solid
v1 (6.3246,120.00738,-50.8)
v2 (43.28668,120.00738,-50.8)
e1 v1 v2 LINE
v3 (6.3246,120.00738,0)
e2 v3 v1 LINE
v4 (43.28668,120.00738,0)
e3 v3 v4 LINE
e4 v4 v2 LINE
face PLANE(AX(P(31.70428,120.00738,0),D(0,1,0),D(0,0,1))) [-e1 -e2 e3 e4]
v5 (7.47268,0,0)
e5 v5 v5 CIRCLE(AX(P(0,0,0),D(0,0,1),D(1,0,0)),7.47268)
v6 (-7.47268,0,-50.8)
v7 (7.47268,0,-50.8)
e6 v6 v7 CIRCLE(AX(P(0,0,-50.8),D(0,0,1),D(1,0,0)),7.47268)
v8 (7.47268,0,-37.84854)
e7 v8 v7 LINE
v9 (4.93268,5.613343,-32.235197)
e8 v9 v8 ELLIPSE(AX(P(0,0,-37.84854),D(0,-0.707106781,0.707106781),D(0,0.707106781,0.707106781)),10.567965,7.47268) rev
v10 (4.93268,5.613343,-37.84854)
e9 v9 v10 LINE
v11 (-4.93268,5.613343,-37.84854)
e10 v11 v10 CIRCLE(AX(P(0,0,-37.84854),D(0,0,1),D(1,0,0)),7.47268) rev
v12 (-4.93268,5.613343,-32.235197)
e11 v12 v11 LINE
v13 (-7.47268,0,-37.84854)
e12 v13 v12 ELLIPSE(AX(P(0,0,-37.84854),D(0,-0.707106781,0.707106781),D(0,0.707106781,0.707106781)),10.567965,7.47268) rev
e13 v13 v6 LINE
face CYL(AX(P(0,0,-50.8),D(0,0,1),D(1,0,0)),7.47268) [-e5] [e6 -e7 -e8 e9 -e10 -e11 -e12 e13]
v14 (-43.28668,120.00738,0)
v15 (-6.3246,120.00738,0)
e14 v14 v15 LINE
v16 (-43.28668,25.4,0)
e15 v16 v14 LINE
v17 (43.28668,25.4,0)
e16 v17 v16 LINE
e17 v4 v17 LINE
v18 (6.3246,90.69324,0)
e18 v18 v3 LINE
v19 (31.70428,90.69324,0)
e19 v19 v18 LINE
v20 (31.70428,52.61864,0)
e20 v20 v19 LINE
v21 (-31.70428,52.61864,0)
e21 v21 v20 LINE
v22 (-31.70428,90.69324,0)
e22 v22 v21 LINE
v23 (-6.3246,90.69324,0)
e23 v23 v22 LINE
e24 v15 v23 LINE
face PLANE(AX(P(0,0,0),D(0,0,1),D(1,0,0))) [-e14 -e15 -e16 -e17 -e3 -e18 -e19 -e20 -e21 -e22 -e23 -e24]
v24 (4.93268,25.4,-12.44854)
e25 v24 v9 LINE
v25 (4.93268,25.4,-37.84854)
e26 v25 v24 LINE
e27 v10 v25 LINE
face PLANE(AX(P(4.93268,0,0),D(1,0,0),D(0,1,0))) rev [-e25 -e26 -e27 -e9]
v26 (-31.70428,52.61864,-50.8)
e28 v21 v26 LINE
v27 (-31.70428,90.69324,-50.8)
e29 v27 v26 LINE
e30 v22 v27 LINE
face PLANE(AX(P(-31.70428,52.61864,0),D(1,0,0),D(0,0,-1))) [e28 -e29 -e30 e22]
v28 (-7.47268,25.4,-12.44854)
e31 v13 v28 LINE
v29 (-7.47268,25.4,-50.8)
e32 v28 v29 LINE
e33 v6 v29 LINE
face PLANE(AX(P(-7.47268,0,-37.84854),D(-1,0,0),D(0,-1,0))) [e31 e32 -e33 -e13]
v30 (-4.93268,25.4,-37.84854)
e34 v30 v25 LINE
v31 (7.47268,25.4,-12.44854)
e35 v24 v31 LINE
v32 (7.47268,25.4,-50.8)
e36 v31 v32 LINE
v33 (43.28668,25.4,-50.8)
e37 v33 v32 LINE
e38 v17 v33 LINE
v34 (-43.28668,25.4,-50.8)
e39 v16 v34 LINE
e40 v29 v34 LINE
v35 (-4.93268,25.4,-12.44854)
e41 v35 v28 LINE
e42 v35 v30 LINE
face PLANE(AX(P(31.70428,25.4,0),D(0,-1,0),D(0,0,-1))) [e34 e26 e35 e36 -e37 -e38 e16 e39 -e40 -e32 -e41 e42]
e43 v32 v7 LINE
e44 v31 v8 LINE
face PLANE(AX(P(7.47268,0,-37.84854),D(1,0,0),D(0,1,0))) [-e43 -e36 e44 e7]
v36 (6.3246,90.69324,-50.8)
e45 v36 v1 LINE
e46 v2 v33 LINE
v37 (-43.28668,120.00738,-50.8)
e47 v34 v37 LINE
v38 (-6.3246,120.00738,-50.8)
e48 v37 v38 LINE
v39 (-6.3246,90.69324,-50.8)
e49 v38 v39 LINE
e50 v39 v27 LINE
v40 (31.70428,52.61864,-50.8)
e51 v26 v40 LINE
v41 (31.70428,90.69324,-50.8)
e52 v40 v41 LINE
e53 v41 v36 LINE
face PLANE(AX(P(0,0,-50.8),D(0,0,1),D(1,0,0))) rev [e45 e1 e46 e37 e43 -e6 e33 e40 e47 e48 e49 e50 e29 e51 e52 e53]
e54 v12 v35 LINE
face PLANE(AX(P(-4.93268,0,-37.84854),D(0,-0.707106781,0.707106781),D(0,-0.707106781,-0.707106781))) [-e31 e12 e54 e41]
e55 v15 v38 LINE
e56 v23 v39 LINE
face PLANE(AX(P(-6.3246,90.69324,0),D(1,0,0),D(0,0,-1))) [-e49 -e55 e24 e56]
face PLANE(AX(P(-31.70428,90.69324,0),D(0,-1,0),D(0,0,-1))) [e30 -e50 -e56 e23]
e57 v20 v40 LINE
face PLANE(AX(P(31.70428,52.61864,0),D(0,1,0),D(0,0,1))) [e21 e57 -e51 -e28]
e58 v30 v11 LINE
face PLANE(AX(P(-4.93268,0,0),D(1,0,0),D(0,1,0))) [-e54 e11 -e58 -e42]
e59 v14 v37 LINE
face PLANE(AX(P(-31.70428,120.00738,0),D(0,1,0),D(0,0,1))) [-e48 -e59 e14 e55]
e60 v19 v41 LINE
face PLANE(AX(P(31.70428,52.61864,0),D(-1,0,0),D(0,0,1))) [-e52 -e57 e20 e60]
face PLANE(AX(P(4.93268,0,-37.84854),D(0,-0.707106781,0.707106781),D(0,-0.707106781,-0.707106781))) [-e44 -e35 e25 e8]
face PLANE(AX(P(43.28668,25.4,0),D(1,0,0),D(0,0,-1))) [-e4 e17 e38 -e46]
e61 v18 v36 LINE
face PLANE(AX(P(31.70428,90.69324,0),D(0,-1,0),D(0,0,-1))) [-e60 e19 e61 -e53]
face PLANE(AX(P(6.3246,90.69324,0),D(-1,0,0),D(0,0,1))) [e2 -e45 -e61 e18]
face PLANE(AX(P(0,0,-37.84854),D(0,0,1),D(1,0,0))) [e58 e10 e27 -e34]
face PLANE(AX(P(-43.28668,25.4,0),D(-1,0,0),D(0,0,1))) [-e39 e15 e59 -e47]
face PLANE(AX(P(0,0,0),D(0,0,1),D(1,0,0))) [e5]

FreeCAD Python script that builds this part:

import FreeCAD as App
import Part
import Sketcher

V = App.Vector
Q = App.Units.Quantity


def add_polygon(sketch, points):
    """Adds a closed chain of lines whose ends are joined by coincident constraints."""
    first, n = sketch.GeometryCount, len(points)
    for a, b in zip(points, points[1:] + points[:1]):
        sketch.addGeometry(Part.LineSegment(App.Vector(*a, 0), App.Vector(*b, 0)), False)
    for i in range(n):
        sketch.addConstraint(Sketcher.Constraint("Coincident", first + i, 2, first + (i + 1) % n, 1))

doc = App.newDocument("Part")
body = doc.addObject("PartDesign::Body", "Body")

# Sketch on XY plane
sketch1 = body.newObject("Sketcher::SketchObject", "Sketch")
sketch1.AttachmentSupport = (doc.getObject("XY_Plane"), [""])
sketch1.MapMode = "FlatFace"
sketch1.addGeometry(Part.Circle(V(0, 0, 0), V(0, 0, 1), 7), False)
sketch1.addConstraint(Sketcher.Constraint("Coincident", 0, 3, -1, 1))
sketch1.addConstraint(Sketcher.Constraint("Diameter", 0, Q("0.5884 in")))
pad1 = body.newObject("PartDesign::Pad", "Pad")
pad1.Profile = sketch1
pad1.Length = Q("2 in")
pad1.Reversed = True

# Sketch on XY plane
sketch2 = body.newObject("Sketcher::SketchObject", "Sketch001")
sketch2.AttachmentSupport = (doc.getObject("XY_Plane"), [""])
sketch2.MapMode = "FlatFace"
sketch2.AttachmentOffset = App.Placement(V(0, 0, -2 * 25.4), App.Rotation())
add_polygon(sketch2, [(7, 25), (7, 0), (-7, 0), (-7, 25)])  # lines 0-3
sketch2.addConstraint(Sketcher.Constraint("Vertical", 0))
sketch2.addConstraint(Sketcher.Constraint("Horizontal", 1))
sketch2.addConstraint(Sketcher.Constraint("Vertical", 2))
sketch2.addConstraint(Sketcher.Constraint("Horizontal", 3))
sketch2.addConstraint(Sketcher.Constraint("Symmetric", 0, 2, 1, 2, -1, 1))
sketch2.addConstraint(Sketcher.Constraint("DistanceY", 0, 2, 0, 1, Q("1 in")))
sketch2.addConstraint(Sketcher.Constraint("DistanceX", 1, 2, 1, 1, Q("0.5884 in")))
pad2 = body.newObject("PartDesign::Pad", "Pad001")
pad2.Profile = sketch2
pad2.Length = Q("0.5099 in")

# Sketch on XY plane
sketch3 = body.newObject("Sketcher::SketchObject", "Sketch002")
sketch3.AttachmentSupport = (doc.getObject("XY_Plane"), [""])
sketch3.MapMode = "FlatFace"
sketch3.AttachmentOffset = App.Placement(V(0, 0, -2 * 25.4), App.Rotation())
add_polygon(sketch3, [(32, 53), (32, 25), (-32, 25), (-32, 53)])  # lines 0-3
sketch3.addConstraint(Sketcher.Constraint("Vertical", 0))
sketch3.addConstraint(Sketcher.Constraint("Horizontal", 1))
sketch3.addConstraint(Sketcher.Constraint("Vertical", 2))
sketch3.addConstraint(Sketcher.Constraint("Horizontal", 3))
sketch3.addConstraint(Sketcher.Constraint("DistanceY", -1, 1, 0, 2, Q("1 in")))
sketch3.addConstraint(Sketcher.Constraint("DistanceX", 1, 2, 1, 1, Q("2.4964 in")))
sketch3.addConstraint(Sketcher.Constraint("DistanceY", 0, 2, 0, 1, Q("1.0716 in")))
sketch3.addConstraint(Sketcher.Constraint("DistanceX", -1, 1, 0, 2, Q("1.2482 in")))
pad3 = body.newObject("PartDesign::Pad", "Pad002")
pad3.Profile = sketch3
pad3.Length = Q("2 in")
body2 = doc.addObject("PartDesign::Body", "Body001")

# Sketch on XY plane
sketch4 = body2.newObject("Sketcher::SketchObject", "Sketch003")
sketch4.AttachmentSupport = (doc.getObject("XY_Plane001"), [""])
sketch4.MapMode = "FlatFace"
sketch4.AttachmentOffset = App.Placement(V(0, 0, -2 * 25.4), App.Rotation())
add_polygon(sketch4, [(43, 91), (43, 53), (32, 53), (32, 91)])  # lines 0-3
sketch4.addConstraint(Sketcher.Constraint("Vertical", 0))
sketch4.addConstraint(Sketcher.Constraint("Horizontal", 1))
sketch4.addConstraint(Sketcher.Constraint("Vertical", 2))
sketch4.addConstraint(Sketcher.Constraint("Horizontal", 3))
sketch4.addConstraint(Sketcher.Constraint("DistanceX", 1, 2, 1, 1, Q("0.456 in")))
sketch4.addConstraint(Sketcher.Constraint("DistanceY", 0, 2, 0, 1, Q("1.499 in")))
sketch4.addConstraint(Sketcher.Constraint("DistanceX", -1, 1, 0, 2, Q("1.7042 in")))
sketch4.addConstraint(Sketcher.Constraint("DistanceY", -1, 1, 0, 2, Q("2.0716 in")))
pad4 = body2.newObject("PartDesign::Pad", "Pad003")
pad4.Profile = sketch4
pad4.Length = Q("2 in")
body3 = doc.addObject("PartDesign::Body", "Body002")

# Sketch on XY plane
sketch5 = body3.newObject("Sketcher::SketchObject", "Sketch004")
sketch5.AttachmentSupport = (doc.getObject("XY_Plane002"), [""])
sketch5.MapMode = "FlatFace"
sketch5.AttachmentOffset = App.Placement(V(0, 0, -2 * 25.4), App.Rotation())
add_polygon(sketch5, [(-32, 91), (-32, 53), (-43, 53), (-43, 91)])  # lines 0-3
sketch5.addConstraint(Sketcher.Constraint("Vertical", 0))
sketch5.addConstraint(Sketcher.Constraint("Horizontal", 1))
sketch5.addConstraint(Sketcher.Constraint("Vertical", 2))
sketch5.addConstraint(Sketcher.Constraint("Horizontal", 3))
sketch5.addConstraint(Sketcher.Constraint("DistanceX", 1, 2, 1, 1, Q("0.456 in")))
sketch5.addConstraint(Sketcher.Constraint("DistanceY", 0, 2, 0, 1, Q("1.499 in")))
sketch5.addConstraint(Sketcher.Constraint("DistanceX", 0, 2, -1, 1, Q("1.2482 in")))
sketch5.addConstraint(Sketcher.Constraint("DistanceY", -1, 1, 0, 2, Q("2.0716 in")))
pad5 = body3.newObject("PartDesign::Pad", "Pad004")
pad5.Profile = sketch5
pad5.Length = Q("2 in")
body.AllowCompound = True
doc.recompute()

boolean = body.newObject("PartDesign::Boolean", "Boolean")
boolean.Type = "Fuse"
boolean.addObjects([body2])
doc.recompute()

boolean2 = body.newObject("PartDesign::Boolean", "Boolean001")
boolean2.Type = "Fuse"
boolean2.addObjects([body3])

# Sketch on XY plane
sketch6 = body.newObject("Sketcher::SketchObject", "Sketch005")
sketch6.AttachmentSupport = (doc.getObject("XY_Plane"), [""])
sketch6.MapMode = "FlatFace"
sketch6.AttachmentOffset = App.Placement(V(0, 0, -2 * 25.4), App.Rotation())
add_polygon(sketch6, [(43, 53), (43, 25), (32, 25), (32, 53)])  # lines 0-3
add_polygon(sketch6, [(-32, 53), (-32, 25), (-43, 25), (-43, 53)])  # lines 4-7
sketch6.addConstraint(Sketcher.Constraint("Vertical", 0))
sketch6.addConstraint(Sketcher.Constraint("Horizontal", 1))
sketch6.addConstraint(Sketcher.Constraint("Vertical", 2))
sketch6.addConstraint(Sketcher.Constraint("Horizontal", 3))
sketch6.addConstraint(Sketcher.Constraint("Vertical", 4))
sketch6.addConstraint(Sketcher.Constraint("Horizontal", 5))
sketch6.addConstraint(Sketcher.Constraint("Vertical", 6))
sketch6.addConstraint(Sketcher.Constraint("Horizontal", 7))
sketch6.addConstraint(Sketcher.Constraint("Symmetric", 1, 2, 4, 2, -2))
sketch6.addConstraint(Sketcher.Constraint("Symmetric", 3, 2, 6, 2, -2))
sketch6.addConstraint(Sketcher.Constraint("DistanceY", -1, 1, 0, 2, Q("1 in")))
sketch6.addConstraint(Sketcher.Constraint("DistanceX", 1, 2, 1, 1, Q("0.456 in")))
sketch6.addConstraint(Sketcher.Constraint("DistanceY", 0, 2, 0, 1, Q("1.0716 in")))
sketch6.addConstraint(Sketcher.Constraint("DistanceX", -1, 1, 0, 2, Q("1.7042 in")))
pad6 = body.newObject("PartDesign::Pad", "Pad005")
pad6.Profile = sketch6
pad6.Length = Q("2 in")
body4 = doc.addObject("PartDesign::Body", "Body003")

# Sketch on XY plane
sketch7 = body4.newObject("Sketcher::SketchObject", "Sketch006")
sketch7.AttachmentSupport = (doc.getObject("XY_Plane003"), [""])
sketch7.MapMode = "FlatFace"
sketch7.AttachmentOffset = App.Placement(V(0, 0, -2 * 25.4), App.Rotation())
add_polygon(sketch7, [(32, 120), (32, 91), (6, 91), (6, 120)])  # lines 0-3
sketch7.addConstraint(Sketcher.Constraint("Vertical", 0))
sketch7.addConstraint(Sketcher.Constraint("Horizontal", 1))
sketch7.addConstraint(Sketcher.Constraint("Vertical", 2))
sketch7.addConstraint(Sketcher.Constraint("Horizontal", 3))
sketch7.addConstraint(Sketcher.Constraint("DistanceX", 1, 2, 1, 1, Q("0.9992 in")))
sketch7.addConstraint(Sketcher.Constraint("DistanceY", 0, 2, 0, 1, Q("1.1541 in")))
sketch7.addConstraint(Sketcher.Constraint("DistanceX", -1, 1, 1, 2, Q("0.249 in")))
sketch7.addConstraint(Sketcher.Constraint("DistanceY", -1, 1, 0, 2, Q("3.5706 in")))
pad7 = body4.newObject("PartDesign::Pad", "Pad006")
pad7.Profile = sketch7
pad7.Length = Q("2 in")
body5 = doc.addObject("PartDesign::Body", "Body004")

# Sketch on XY plane
sketch8 = body5.newObject("Sketcher::SketchObject", "Sketch007")
sketch8.AttachmentSupport = (doc.getObject("XY_Plane004"), [""])
sketch8.MapMode = "FlatFace"
sketch8.AttachmentOffset = App.Placement(V(0, 0, -2 * 25.4), App.Rotation())
add_polygon(sketch8, [(-6, 120), (-6, 91), (-32, 91), (-32, 120)])  # lines 0-3
sketch8.addConstraint(Sketcher.Constraint("Vertical", 0))
sketch8.addConstraint(Sketcher.Constraint("Horizontal", 1))
sketch8.addConstraint(Sketcher.Constraint("Vertical", 2))
sketch8.addConstraint(Sketcher.Constraint("Horizontal", 3))
sketch8.addConstraint(Sketcher.Constraint("DistanceX", 1, 2, 1, 1, Q("0.9992 in")))
sketch8.addConstraint(Sketcher.Constraint("DistanceY", 0, 2, 0, 1, Q("1.1541 in")))
sketch8.addConstraint(Sketcher.Constraint("DistanceX", 0, 2, -1, 1, Q("0.249 in")))
sketch8.addConstraint(Sketcher.Constraint("DistanceY", -1, 1, 0, 2, Q("3.5706 in")))
pad8 = body5.newObject("PartDesign::Pad", "Pad007")
pad8.Profile = sketch8
pad8.Length = Q("2 in")
body.AllowCompound = True
doc.recompute()

boolean3 = body.newObject("PartDesign::Boolean", "Boolean002")
boolean3.Type = "Fuse"
boolean3.addObjects([body4])
doc.recompute()

boolean4 = body.newObject("PartDesign::Boolean", "Boolean003")
boolean4.Type = "Fuse"
boolean4.addObjects([body5])

# Sketch on XY plane
sketch9 = body.newObject("Sketcher::SketchObject", "Sketch008")
sketch9.AttachmentSupport = (doc.getObject("XY_Plane"), [""])
sketch9.MapMode = "FlatFace"
sketch9.AttachmentOffset = App.Placement(V(0, 0, -2 * 25.4), App.Rotation())
add_polygon(sketch9, [(43, 120), (43, 91), (32, 91), (32, 120)])  # lines 0-3
add_polygon(sketch9, [(-32, 120), (-32, 91), (-43, 91), (-43, 120)])  # lines 4-7
sketch9.addConstraint(Sketcher.Constraint("Vertical", 0))
sketch9.addConstraint(Sketcher.Constraint("Horizontal", 1))
sketch9.addConstraint(Sketcher.Constraint("Vertical", 2))
sketch9.addConstraint(Sketcher.Constraint("Horizontal", 3))
sketch9.addConstraint(Sketcher.Constraint("Vertical", 4))
sketch9.addConstraint(Sketcher.Constraint("Horizontal", 5))
sketch9.addConstraint(Sketcher.Constraint("Vertical", 6))
sketch9.addConstraint(Sketcher.Constraint("Horizontal", 7))
sketch9.addConstraint(Sketcher.Constraint("Symmetric", 1, 2, 4, 2, -2))
sketch9.addConstraint(Sketcher.Constraint("Symmetric", 3, 2, 6, 2, -2))
sketch9.addConstraint(Sketcher.Constraint("DistanceX", 1, 2, 1, 1, Q("0.456 in")))
sketch9.addConstraint(Sketcher.Constraint("DistanceY", 0, 2, 0, 1, Q("1.1541 in")))
sketch9.addConstraint(Sketcher.Constraint("DistanceX", -1, 1, 0, 2, Q("1.7042 in")))
sketch9.addConstraint(Sketcher.Constraint("DistanceY", -1, 1, 0, 2, Q("3.5706 in")))
pad9 = body.newObject("PartDesign::Pad", "Pad008")
pad9.Profile = sketch9
pad9.Length = Q("2 in")

# Sketch on YZ plane
sketch10 = body.newObject("Sketcher::SketchObject", "Sketch009")
sketch10.AttachmentSupport = (doc.getObject("YZ_Plane"), [""])
sketch10.MapMode = "FlatFace"
sketch10.AttachmentOffset = App.Placement(V(0, 0, -0.2942 * 25.4), App.Rotation())
add_polygon(sketch10, [(0, -38), (25, -12), (25, -38)])  # lines 0-2
sketch10.addConstraint(Sketcher.Constraint("Vertical", 1))
sketch10.addConstraint(Sketcher.Constraint("Horizontal", 2))
sketch10.addConstraint(Sketcher.Constraint("PointOnObject", 2, 2, -2))
sketch10.addConstraint(Sketcher.Constraint("Equal", 2, 1))
sketch10.addConstraint(Sketcher.Constraint("DistanceX", 2, 2, 2, 1, Q("1 in")))
sketch10.addConstraint(Sketcher.Constraint("DistanceY", 0, 2, -1, 1, Q("0.4901 in")))
pad10 = body.newObject("PartDesign::Pad", "Pad009")
pad10.Profile = sketch10
pad10.Length = Q("0.1 in")

# Sketch on YZ plane
sketch11 = body.newObject("Sketcher::SketchObject", "Sketch010")
sketch11.AttachmentSupport = (doc.getObject("YZ_Plane"), [""])
sketch11.MapMode = "FlatFace"
sketch11.AttachmentOffset = App.Placement(V(0, 0, 0.2942 * 25.4), App.Rotation())
add_polygon(sketch11, [(25, -12), (0, -38), (25, -38)])  # lines 0-2
sketch11.addConstraint(Sketcher.Constraint("Horizontal", 1))
sketch11.addConstraint(Sketcher.Constraint("Vertical", 2))
sketch11.addConstraint(Sketcher.Constraint("PointOnObject", 0, 2, -2))
sketch11.addConstraint(Sketcher.Constraint("Equal", 1, 2))
sketch11.addConstraint(Sketcher.Constraint("DistanceX", 1, 1, 1, 2, Q("1 in")))
sketch11.addConstraint(Sketcher.Constraint("DistanceY", 0, 2, -1, 1, Q("1.4901 in")))
pad11 = body.newObject("PartDesign::Pad", "Pad010")
pad11.Profile = sketch11
pad11.Length = Q("0.1 in")
pad11.Reversed = True

doc.recompute()
